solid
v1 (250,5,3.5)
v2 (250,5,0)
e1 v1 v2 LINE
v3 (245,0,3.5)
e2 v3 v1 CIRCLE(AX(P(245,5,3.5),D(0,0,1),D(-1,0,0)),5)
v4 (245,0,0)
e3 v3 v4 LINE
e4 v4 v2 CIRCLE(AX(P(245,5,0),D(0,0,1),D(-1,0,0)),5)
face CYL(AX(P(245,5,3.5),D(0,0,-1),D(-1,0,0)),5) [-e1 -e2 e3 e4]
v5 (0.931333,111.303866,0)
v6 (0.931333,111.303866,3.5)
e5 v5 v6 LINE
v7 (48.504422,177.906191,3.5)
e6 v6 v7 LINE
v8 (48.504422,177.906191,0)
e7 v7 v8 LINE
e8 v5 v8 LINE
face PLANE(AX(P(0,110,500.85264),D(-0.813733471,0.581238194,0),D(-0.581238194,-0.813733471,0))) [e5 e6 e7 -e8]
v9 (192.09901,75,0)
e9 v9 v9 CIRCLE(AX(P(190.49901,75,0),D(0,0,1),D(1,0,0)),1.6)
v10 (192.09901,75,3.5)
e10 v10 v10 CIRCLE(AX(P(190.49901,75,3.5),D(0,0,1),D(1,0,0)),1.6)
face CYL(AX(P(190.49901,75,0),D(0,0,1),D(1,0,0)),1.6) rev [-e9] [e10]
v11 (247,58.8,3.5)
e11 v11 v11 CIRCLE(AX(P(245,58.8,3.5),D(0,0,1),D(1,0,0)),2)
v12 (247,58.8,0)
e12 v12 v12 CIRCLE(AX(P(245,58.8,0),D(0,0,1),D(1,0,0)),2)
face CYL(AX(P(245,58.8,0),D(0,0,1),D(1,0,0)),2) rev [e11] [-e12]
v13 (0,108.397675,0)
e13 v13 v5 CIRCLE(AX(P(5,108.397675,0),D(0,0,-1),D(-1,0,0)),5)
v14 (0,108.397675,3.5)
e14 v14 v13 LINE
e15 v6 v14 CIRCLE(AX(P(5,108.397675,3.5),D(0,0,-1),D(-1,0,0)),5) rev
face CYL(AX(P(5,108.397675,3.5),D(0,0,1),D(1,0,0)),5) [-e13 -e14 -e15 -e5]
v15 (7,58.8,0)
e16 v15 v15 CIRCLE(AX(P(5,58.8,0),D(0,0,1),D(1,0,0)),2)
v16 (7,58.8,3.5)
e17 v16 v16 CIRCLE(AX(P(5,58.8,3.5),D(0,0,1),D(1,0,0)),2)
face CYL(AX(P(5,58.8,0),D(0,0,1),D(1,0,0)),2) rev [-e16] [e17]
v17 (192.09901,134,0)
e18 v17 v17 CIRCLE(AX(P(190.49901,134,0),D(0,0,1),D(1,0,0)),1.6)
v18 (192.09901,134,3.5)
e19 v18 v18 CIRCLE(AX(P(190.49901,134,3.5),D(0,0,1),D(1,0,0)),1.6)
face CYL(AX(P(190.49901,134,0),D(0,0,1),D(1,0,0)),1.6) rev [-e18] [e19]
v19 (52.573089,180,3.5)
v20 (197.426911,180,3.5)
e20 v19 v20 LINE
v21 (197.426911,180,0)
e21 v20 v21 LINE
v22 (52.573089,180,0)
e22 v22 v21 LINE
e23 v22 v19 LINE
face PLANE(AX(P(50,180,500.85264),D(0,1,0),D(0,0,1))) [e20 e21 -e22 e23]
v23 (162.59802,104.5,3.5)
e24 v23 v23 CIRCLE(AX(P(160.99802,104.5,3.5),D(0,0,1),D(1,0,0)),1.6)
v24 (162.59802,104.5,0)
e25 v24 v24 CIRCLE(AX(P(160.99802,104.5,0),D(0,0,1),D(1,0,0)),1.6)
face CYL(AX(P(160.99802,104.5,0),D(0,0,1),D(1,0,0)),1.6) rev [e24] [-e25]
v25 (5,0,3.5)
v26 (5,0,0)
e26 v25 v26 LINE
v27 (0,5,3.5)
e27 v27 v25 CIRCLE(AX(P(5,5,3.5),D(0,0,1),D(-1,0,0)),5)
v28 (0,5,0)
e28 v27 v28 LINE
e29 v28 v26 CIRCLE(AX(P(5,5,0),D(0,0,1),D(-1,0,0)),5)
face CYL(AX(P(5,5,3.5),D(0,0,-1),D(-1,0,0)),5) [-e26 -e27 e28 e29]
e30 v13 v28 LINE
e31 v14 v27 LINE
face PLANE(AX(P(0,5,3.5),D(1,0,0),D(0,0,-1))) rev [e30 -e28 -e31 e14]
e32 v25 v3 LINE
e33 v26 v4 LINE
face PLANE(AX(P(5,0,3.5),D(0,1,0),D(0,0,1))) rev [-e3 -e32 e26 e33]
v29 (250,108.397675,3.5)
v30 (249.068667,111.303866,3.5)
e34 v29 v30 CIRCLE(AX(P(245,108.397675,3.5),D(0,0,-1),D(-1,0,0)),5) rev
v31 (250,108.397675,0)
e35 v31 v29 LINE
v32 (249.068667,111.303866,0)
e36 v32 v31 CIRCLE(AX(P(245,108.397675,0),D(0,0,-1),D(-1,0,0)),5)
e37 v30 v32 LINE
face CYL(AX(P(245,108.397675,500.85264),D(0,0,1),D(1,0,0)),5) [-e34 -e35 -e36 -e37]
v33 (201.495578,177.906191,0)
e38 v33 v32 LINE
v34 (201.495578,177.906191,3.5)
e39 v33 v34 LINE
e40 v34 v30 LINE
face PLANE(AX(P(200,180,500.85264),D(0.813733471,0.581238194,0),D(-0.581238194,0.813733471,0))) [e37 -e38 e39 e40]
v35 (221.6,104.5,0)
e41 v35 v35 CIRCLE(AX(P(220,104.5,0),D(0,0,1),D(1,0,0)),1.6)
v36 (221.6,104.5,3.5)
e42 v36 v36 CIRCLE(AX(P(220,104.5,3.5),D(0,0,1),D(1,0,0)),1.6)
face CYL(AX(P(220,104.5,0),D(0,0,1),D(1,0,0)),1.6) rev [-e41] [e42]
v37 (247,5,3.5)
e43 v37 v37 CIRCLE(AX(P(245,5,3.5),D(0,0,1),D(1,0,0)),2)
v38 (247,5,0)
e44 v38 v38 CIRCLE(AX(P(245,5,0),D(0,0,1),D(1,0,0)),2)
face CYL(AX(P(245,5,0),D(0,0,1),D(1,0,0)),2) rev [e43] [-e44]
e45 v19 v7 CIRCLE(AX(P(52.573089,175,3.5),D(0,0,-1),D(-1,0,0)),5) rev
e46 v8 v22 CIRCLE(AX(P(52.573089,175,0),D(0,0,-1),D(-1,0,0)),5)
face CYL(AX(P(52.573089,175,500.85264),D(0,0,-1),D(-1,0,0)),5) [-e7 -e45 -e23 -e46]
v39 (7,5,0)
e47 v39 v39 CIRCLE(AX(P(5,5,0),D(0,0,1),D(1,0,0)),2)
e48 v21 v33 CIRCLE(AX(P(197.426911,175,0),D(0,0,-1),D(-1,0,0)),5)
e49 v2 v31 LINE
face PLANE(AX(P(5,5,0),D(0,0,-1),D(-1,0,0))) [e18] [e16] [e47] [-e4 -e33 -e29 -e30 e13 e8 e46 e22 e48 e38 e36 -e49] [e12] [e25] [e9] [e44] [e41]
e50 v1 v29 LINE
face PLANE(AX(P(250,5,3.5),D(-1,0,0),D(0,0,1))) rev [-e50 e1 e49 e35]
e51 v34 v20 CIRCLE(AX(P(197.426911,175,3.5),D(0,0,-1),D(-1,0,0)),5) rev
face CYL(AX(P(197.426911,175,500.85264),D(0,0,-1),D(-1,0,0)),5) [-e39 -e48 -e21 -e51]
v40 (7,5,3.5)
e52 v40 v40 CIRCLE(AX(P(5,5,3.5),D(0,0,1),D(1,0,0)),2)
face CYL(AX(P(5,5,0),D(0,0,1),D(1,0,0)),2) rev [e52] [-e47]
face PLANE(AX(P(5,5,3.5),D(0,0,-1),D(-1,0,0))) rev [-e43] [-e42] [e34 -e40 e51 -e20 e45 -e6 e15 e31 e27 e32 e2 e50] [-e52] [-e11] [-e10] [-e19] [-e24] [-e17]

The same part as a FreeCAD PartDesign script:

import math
import FreeCAD as App
import Part
import Sketcher
from FreeCAD import Vector
Q = App.Units.Quantity


def edges_at(feature, points):
    """Names of the edges that pass closest to the given points."""
    edges = feature.Shape.Edges
    near = lambda p: min(range(len(edges)), key=lambda i: edges[i].distToShape(Part.Vertex(*p))[0])
    return sorted({f"Edge{near(p) + 1}" for p in points})

doc = App.newDocument("Part")
params = doc.addObject("Spreadsheet::Sheet", "Params")
for row, (alias, value) in enumerate([
    ("sketch1_radius", "5 mm"),
    ("sketch1_width", "240 mm"),
    ("sketch1_height", "300 mm"),
    ("pad1_length", "3.5 mm"),
    ("sketch2_diameter", "4 mm"),
    ("sketch3_width", "150 mm"),
    ("fillet_radius", "5 mm"),
    ("sketch4_diameter", "3.2 mm"),
], start=1):
    params.set(f"A{row}", alias)
    params.set(f"B{row}", "=" + value)
    params.setAlias(f"B{row}", alias)

body = doc.addObject("PartDesign::Body", "Body")

# Sketch on XY plane
sketch1 = doc.addObject("Sketcher::SketchObject", "Sketch")
body.addObject(sketch1)
sketch1.AttachmentSupport = (doc.XY_Plane, [""])
sketch1.MapMode = "FlatFace"
sketch1.addGeometry(Part.LineSegment(Vector(5, 0, 0), Vector(245, 0, 0)), False)
sketch1.addGeometry(Part.ArcOfCircle(Part.Circle(Vector(245, 5, 0), Vector(0, 0, 1), 5), math.radians(-90), math.radians(0)), False)
sketch1.addGeometry(Part.LineSegment(Vector(250, 5, 0), Vector(250, 305, 0)), False)
sketch1.addGeometry(Part.LineSegment(Vector(250, 305, 0), Vector(0, 305, 0)), False)
sketch1.addGeometry(Part.LineSegment(Vector(0, 305, 0), Vector(0, 5, 0)), False)
sketch1.addGeometry(Part.ArcOfCircle(Part.Circle(Vector(5, 5, 0), Vector(0, 0, 1), 5), math.radians(180), math.radians(270)), False)
sketch1.addConstraint(Sketcher.Constraint("Tangent", 0, 2, 1, 1))
sketch1.addConstraint(Sketcher.Constraint("Tangent", 1, 2, 2, 1))
sketch1.addConstraint(Sketcher.Constraint("Coincident", 2, 2, 3, 1))
sketch1.addConstraint(Sketcher.Constraint("Coincident", 3, 2, 4, 1))
sketch1.addConstraint(Sketcher.Constraint("Tangent", 4, 2, 5, 1))
sketch1.addConstraint(Sketcher.Constraint("Tangent", 5, 2, 0, 1))
sketch1.addConstraint(Sketcher.Constraint("Horizontal", 0))
sketch1.addConstraint(Sketcher.Constraint("Vertical", 2))
sketch1.addConstraint(Sketcher.Constraint("Horizontal", 3))
sketch1.addConstraint(Sketcher.Constraint("Vertical", 4))
sketch1.addConstraint(Sketcher.Constraint("Equal", 1, 5))
sketch1.addConstraint(Sketcher.Constraint("PointOnObject", 0, 2, -1))
sketch1.addConstraint(Sketcher.Constraint("PointOnObject", 3, 2, -2))
sketch1.addConstraint(Sketcher.Constraint("Radius", 1, Q("5 mm")))
sketch1.addConstraint(Sketcher.Constraint("DistanceX", 0, 1, 0, 2, Q("240 mm")))
sketch1.addConstraint(Sketcher.Constraint("DistanceY", 2, 1, 2, 2, Q("300 mm")))
sketch1.setExpression("Constraints[13]", "Params.sketch1_radius")
sketch1.setExpression("Constraints[14]", "Params.sketch1_width")
sketch1.setExpression("Constraints[15]", "Params.sketch1_height")
pad1 = doc.addObject("PartDesign::Pad", "Pad")
body.addObject(pad1)
pad1.Profile = sketch1
pad1.setExpression("Length", "Params.pad1_length")

# Sketch on XY plane
sketch2 = doc.addObject("Sketcher::SketchObject", "Sketch001")
body.addObject(sketch2)
sketch2.AttachmentSupport = (doc.XY_Plane, [""])
sketch2.MapMode = "FlatFace"
sketch2.AttachmentOffset = App.Placement(Vector(0, 0, 3.5), App.Rotation())
sketch2.addGeometry(Part.Circle(Vector(5, 5, 0), Vector(0, 0, 1), 2), False)
sketch2.addGeometry(Part.Circle(Vector(245, 5, 0), Vector(0, 0, 1), 2), False)
sketch2.addGeometry(Part.Circle(Vector(5, 58.8, 0), Vector(0, 0, 1), 2), False)
sketch2.addGeometry(Part.Circle(Vector(245, 58.8, 0), Vector(0, 0, 1), 2), False)
sketch2.addConstraint(Sketcher.Constraint("Equal", 0, 1))
sketch2.addConstraint(Sketcher.Constraint("Equal", 1, 2))
sketch2.addConstraint(Sketcher.Constraint("Equal", 2, 3))
sketch2.addConstraint(Sketcher.Constraint("Horizontal", 0, 3, 1, 3))
sketch2.addConstraint(Sketcher.Constraint("Horizontal", 2, 3, 3, 3))
sketch2.addConstraint(Sketcher.Constraint("Vertical", 0, 3, 2, 3))
sketch2.addConstraint(Sketcher.Constraint("Vertical", 1, 3, 3, 3))
sketch2.addConstraint(Sketcher.Constraint("Diameter", 0, Q("4 mm")))
sketch2.addConstraint(Sketcher.Constraint("DistanceX", -1, 1, 0, 3, Q("5 mm")))
sketch2.addConstraint(Sketcher.Constraint("DistanceY", -1, 1, 0, 3, Q("5 mm")))
sketch2.addConstraint(Sketcher.Constraint("DistanceX", -1, 1, 1, 3, Q("245 mm")))
sketch2.addConstraint(Sketcher.Constraint("DistanceY", -1, 1, 2, 3, Q("58.8 mm")))
sketch2.setExpression("Constraints[7]", "Params.sketch2_diameter")
pocket1 = doc.addObject("PartDesign::Pocket", "Pocket")
body.addObject(pocket1)
pocket1.Profile = sketch2
pocket1.Type = "ThroughAll"

# Sketch on XY plane
sketch3 = doc.addObject("Sketcher::SketchObject", "Sketch002")
body.addObject(sketch3)
sketch3.AttachmentSupport = (doc.XY_Plane, [""])
sketch3.MapMode = "FlatFace"
sketch3.AttachmentOffset = App.Placement(Vector(0, 0, 3.5), App.Rotation())
sketch3.addGeometry(Part.LineSegment(Vector(-374, -414, 0), Vector(50, 180, 0)), False)
sketch3.addGeometry(Part.LineSegment(Vector(50, 180, 0), Vector(200, 180, 0)), False)
sketch3.addGeometry(Part.LineSegment(Vector(200, 180, 0), Vector(624, -414, 0)), False)
sketch3.addGeometry(Part.LineSegment(Vector(624, -414, 0), Vector(624, 874, 0)), False)
sketch3.addGeometry(Part.LineSegment(Vector(624, 874, 0), Vector(-374, 874, 0)), False)
sketch3.addGeometry(Part.LineSegment(Vector(-374, 874, 0), Vector(-374, -414, 0)), False)
sketch3.addConstraint(Sketcher.Constraint("Coincident", 0, 2, 1, 1))
sketch3.addConstraint(Sketcher.Constraint("Coincident", 1, 2, 2, 1))
sketch3.addConstraint(Sketcher.Constraint("Coincident", 2, 2, 3, 1))
sketch3.addConstraint(Sketcher.Constraint("Coincident", 3, 2, 4, 1))
sketch3.addConstraint(Sketcher.Constraint("Coincident", 4, 2, 5, 1))
sketch3.addConstraint(Sketcher.Constraint("Coincident", 5, 2, 0, 1))
sketch3.addConstraint(Sketcher.Constraint("Horizontal", 1))
sketch3.addConstraint(Sketcher.Constraint("Vertical", 3))
sketch3.addConstraint(Sketcher.Constraint("Horizontal", 4))
sketch3.addConstraint(Sketcher.Constraint("Vertical", 5))
sketch3.addConstraint(Sketcher.Constraint("Horizontal", 2, 2, 5, 2))
sketch3.addConstraint(Sketcher.Constraint("Equal", 0, 2))
sketch3.addConstraint(Sketcher.Constraint("DistanceX", 1, 1, 1, 2, Q("150 mm")))
sketch3.addConstraint(Sketcher.Constraint("DistanceX", -1, 1, 0, 2, Q("50 mm")))
sketch3.addConstraint(Sketcher.Constraint("DistanceY", -1, 1, 0, 2, Q("180 mm")))
sketch3.addConstraint(Sketcher.Constraint("DistanceY", 3, 1, 3, 2, Q("1288.227109 mm")))
sketch3.addConstraint(Sketcher.Constraint("DistanceX", -1, 1, 2, 2, Q("624.383399 mm")))
sketch3.addConstraint(Sketcher.Constraint("DistanceY", 2, 2, -1, 1, Q("414.136759 mm")))
sketch3.setExpression("Constraints[12]", "Params.sketch3_width")
pocket2 = doc.addObject("PartDesign::Pocket", "Pocket001")
body.addObject(pocket2)
pocket2.Profile = sketch3
pocket2.Type = "ThroughAll"
pocket2.Midplane = True
doc.recompute()

fillet = doc.addObject("PartDesign::Fillet", "Fillet")
body.addObject(fillet)
fillet.Base = (pocket2, edges_at(pocket2, [
    (50, 180, 1.75),
    (200, 180, 1.75),
    (250, 110, 1.75),
    (0, 110, 1.75),
]))
fillet.setExpression("Radius", "Params.fillet_radius")

# Sketch on XY plane
sketch4 = doc.addObject("Sketcher::SketchObject", "Sketch003")
body.addObject(sketch4)
sketch4.AttachmentSupport = (doc.XY_Plane, [""])
sketch4.MapMode = "FlatFace"
sketch4.AttachmentOffset = App.Placement(Vector(0, 0, 3.5), App.Rotation())
sketch4.addGeometry(Part.Circle(Vector(220, 104.5, 0), Vector(0, 0, 1), 1.6), False)
sketch4.addGeometry(Part.Circle(Vector(190.5, 134, 0), Vector(0, 0, 1), 1.6), False)
sketch4.addGeometry(Part.Circle(Vector(161, 104.5, 0), Vector(0, 0, 1), 1.6), False)
sketch4.addGeometry(Part.Circle(Vector(190.5, 75, 0), Vector(0, 0, 1), 1.6), False)
sketch4.addConstraint(Sketcher.Constraint("Equal", 0, 1))
sketch4.addConstraint(Sketcher.Constraint("Equal", 1, 2))
sketch4.addConstraint(Sketcher.Constraint("Equal", 2, 3))
sketch4.addConstraint(Sketcher.Constraint("Horizontal", 0, 3, 2, 3))
sketch4.addConstraint(Sketcher.Constraint("Vertical", 1, 3, 3, 3))
sketch4.addConstraint(Sketcher.Constraint("Diameter", 0, Q("3.2 mm")))
sketch4.addConstraint(Sketcher.Constraint("DistanceX", -1, 1, 0, 3, Q("220 mm")))
sketch4.addConstraint(Sketcher.Constraint("DistanceY", -1, 1, 1, 3, Q("134 mm")))
sketch4.addConstraint(Sketcher.Constraint("DistanceY", -1, 1, 3, 3, Q("75 mm")))
sketch4.addConstraint(Sketcher.Constraint("DistanceY", -1, 1, 0, 3, Q("104.5 mm")))
sketch4.addConstraint(Sketcher.Constraint("DistanceX", -1, 1, 1, 3, Q("190.49901 mm")))
sketch4.addConstraint(Sketcher.Constraint("DistanceX", -1, 1, 2, 3, Q("160.99802 mm")))
sketch4.setExpression("Constraints[5]", "Params.sketch4_diameter")
pocket3 = doc.addObject("PartDesign::Pocket", "Pocket002")
body.addObject(pocket3)
pocket3.Profile = sketch4
pocket3.Type = "ThroughAll"

doc.recompute()
